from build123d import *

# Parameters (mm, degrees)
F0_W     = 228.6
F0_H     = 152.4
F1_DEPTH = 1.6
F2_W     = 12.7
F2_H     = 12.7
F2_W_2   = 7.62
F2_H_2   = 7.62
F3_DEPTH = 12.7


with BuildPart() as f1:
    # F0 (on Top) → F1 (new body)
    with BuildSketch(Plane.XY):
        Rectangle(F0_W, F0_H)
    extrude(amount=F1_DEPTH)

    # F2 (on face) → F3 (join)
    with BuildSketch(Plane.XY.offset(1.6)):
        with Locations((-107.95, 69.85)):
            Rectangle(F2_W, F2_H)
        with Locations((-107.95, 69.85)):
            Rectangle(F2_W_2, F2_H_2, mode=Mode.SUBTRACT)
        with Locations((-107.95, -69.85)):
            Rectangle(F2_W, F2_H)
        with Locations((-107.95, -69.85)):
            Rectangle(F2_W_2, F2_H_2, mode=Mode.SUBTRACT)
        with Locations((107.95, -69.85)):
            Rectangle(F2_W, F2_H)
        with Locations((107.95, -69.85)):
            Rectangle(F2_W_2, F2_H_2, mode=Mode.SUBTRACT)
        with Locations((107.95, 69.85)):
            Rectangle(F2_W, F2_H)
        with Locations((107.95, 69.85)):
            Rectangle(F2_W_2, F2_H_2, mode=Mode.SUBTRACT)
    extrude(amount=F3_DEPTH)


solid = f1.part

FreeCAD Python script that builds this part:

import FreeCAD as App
import Part
import Sketcher
Q = App.Units.Quantity


def add_polygon(sketch, points):
    """Adds a closed chain of lines whose ends are joined by coincident constraints."""
    first, n = sketch.GeometryCount, len(points)
    for a, b in zip(points, points[1:] + points[:1]):
        sketch.addGeometry(Part.LineSegment(App.Vector(*a, 0), App.Vector(*b, 0)), False)
    for i in range(n):
        sketch.addConstraint(Sketcher.Constraint("Coincident", first + i, 2, first + (i + 1) % n, 1))

doc = App.newDocument("Part")
params = doc.addObject("Spreadsheet::Sheet", "Params")
for row, (alias, value) in enumerate([
    ("sketch1_width", "9 in"),
    ("sketch1_height", "6 in"),
    ("pad1_length", "1.6 mm"),
    ("sketch2_width", "0.5 in"),
    ("sketch2_width2", "0.3 in"),
    ("pad2_length", "0.5 in"),
], start=1):
    params.set(f"A{row}", alias)
    params.set(f"B{row}", "=" + value)
    params.setAlias(f"B{row}", alias)

body = doc.addObject("PartDesign::Body", "Body")

sketch1 = body.newObject("Sketcher::SketchObject", "Sketch")
sketch1.AttachmentSupport = (doc.getObject("XY_Plane"), [""])
sketch1.MapMode = "FlatFace"
add_polygon(sketch1, [(-114, 76), (-114, -76), (114, -76), (114, 76)])
sketch1.addConstraint([
    Sketcher.Constraint("Vertical", 0),
    Sketcher.Constraint("Horizontal", 1),
    Sketcher.Constraint("Vertical", 2),
    Sketcher.Constraint("Horizontal", 3),
    Sketcher.Constraint("Symmetric", 0, 2, 2, 2, -1, 1),
    Sketcher.Constraint("DistanceX", 1, 1, 1, 2, Q("9 in")),
    Sketcher.Constraint("DistanceY", 0, 2, 0, 1, Q("6 in")),
])
sketch1.setExpression("Constraints[9]", "Params.sketch1_width")
sketch1.setExpression("Constraints[10]", "Params.sketch1_height")
pad1 = body.newObject("PartDesign::Pad", "Pad")
pad1.Profile = sketch1
pad1.setExpression("Length", "Params.pad1_length")

sketch2 = body.newObject("Sketcher::SketchObject", "Sketch001")
sketch2.AttachmentSupport = (doc.getObject("XY_Plane"), [""])
sketch2.MapMode = "FlatFace"
sketch2.AttachmentOffset = App.Placement(App.Vector(0, 0, 1.6), App.Rotation())
add_polygon(sketch2, [(-114, 76), (-114, 64), (-102, 64), (-102, 76)])
add_polygon(sketch2, [(-104, 66), (-112, 66), (-112, 74), (-104, 74)])
add_polygon(sketch2, [(-114, -64), (-114, -76), (-102, -76), (-102, -64)])
add_polygon(sketch2, [(-104, -74), (-112, -74), (-112, -66), (-104, -66)])
add_polygon(sketch2, [(102, -64), (102, -76), (114, -76), (114, -64)])
add_polygon(sketch2, [(112, -74), (104, -74), (104, -66), (112, -66)])
add_polygon(sketch2, [(102, 76), (102, 64), (114, 64), (114, 76)])
add_polygon(sketch2, [(112, 66), (104, 66), (104, 74), (112, 74)])
sketch2.addConstraint([
    Sketcher.Constraint("Vertical", 0),
    Sketcher.Constraint("Horizontal", 1),
    Sketcher.Constraint("Vertical", 2),
    Sketcher.Constraint("Horizontal", 3),
    Sketcher.Constraint("Horizontal", 4),
    Sketcher.Constraint("Vertical", 5),
    Sketcher.Constraint("Horizontal", 6),
    Sketcher.Constraint("Vertical", 7),
    Sketcher.Constraint("Vertical", 8),
    Sketcher.Constraint("Horizontal", 9),
    Sketcher.Constraint("Vertical", 10),
    Sketcher.Constraint("Horizontal", 11),
    Sketcher.Constraint("Horizontal", 12),
    Sketcher.Constraint("Vertical", 13),
    Sketcher.Constraint("Horizontal", 14),
    Sketcher.Constraint("Vertical", 15),
    Sketcher.Constraint("Vertical", 16),
    Sketcher.Constraint("Horizontal", 17),
    Sketcher.Constraint("Vertical", 18),
    Sketcher.Constraint("Horizontal", 19),
    Sketcher.Constraint("Horizontal", 20),
    Sketcher.Constraint("Vertical", 21),
    Sketcher.Constraint("Horizontal", 22),
    Sketcher.Constraint("Vertical", 23),
    Sketcher.Constraint("Vertical", 24),
    Sketcher.Constraint("Horizontal", 25),
    Sketcher.Constraint("Vertical", 26),
    Sketcher.Constraint("Horizontal", 27),
    Sketcher.Constraint("Horizontal", 28),
    Sketcher.Constraint("Vertical", 29),
    Sketcher.Constraint("Horizontal", 30),
    Sketcher.Constraint("Vertical", 31),
    Sketcher.Constraint("Symmetric", 2, 2, 16, 2, -1, 1),
    Sketcher.Constraint("Symmetric", 0, 2, 18, 2, -1, 1),
    Sketcher.Constraint("Symmetric", 6, 2, 20, 2, -1, 1),
    Sketcher.Constraint("Symmetric", 4, 2, 22, 2, -1, 1),
    Sketcher.Constraint("Symmetric", 10, 2, 24, 2, -1, 1),
    Sketcher.Constraint("Symmetric", 8, 2, 26, 2, -1, 1),
    Sketcher.Constraint("Symmetric", 14, 2, 28, 2, -1, 1),
    Sketcher.Constraint("Symmetric", 12, 2, 30, 2, -1, 1),
    Sketcher.Constraint("Symmetric", 9, 2, 16, 2, -2),
    Sketcher.Constraint("Symmetric", 11, 2, 18, 2, -2),
    Sketcher.Constraint("Symmetric", 15, 2, 20, 2, -2),
    Sketcher.Constraint("Symmetric", 13, 2, 22, 2, -2),
    Sketcher.Constraint("Equal", 27, 0),
    Sketcher.Constraint("Equal", 30, 5),
    Sketcher.Constraint("DistanceX", 1, 1, 1, 2, Q("0.5 in")),
    Sketcher.Constraint("DistanceX", 4, 2, 4, 1, Q("0.3 in")),
    Sketcher.Constraint("DistanceX", 1, 2, -1, 1, Q("4 in")),
    Sketcher.Constraint("DistanceY", -1, 1, 2, 2, Q("3 in")),
    Sketcher.Constraint("DistanceX", 4, 2, -1, 1, Q("4.4 in")),
    Sketcher.Constraint("DistanceY", -1, 1, 4, 2, Q("2.6 in")),
])
sketch2.setExpression("Constraints[78]", "Params.sketch2_width")
sketch2.setExpression("Constraints[79]", "Params.sketch2_width2")
pad2 = body.newObject("PartDesign::Pad", "Pad001")
pad2.Profile = sketch2
pad2.setExpression("Length", "Params.pad2_length")

doc.recompute()
